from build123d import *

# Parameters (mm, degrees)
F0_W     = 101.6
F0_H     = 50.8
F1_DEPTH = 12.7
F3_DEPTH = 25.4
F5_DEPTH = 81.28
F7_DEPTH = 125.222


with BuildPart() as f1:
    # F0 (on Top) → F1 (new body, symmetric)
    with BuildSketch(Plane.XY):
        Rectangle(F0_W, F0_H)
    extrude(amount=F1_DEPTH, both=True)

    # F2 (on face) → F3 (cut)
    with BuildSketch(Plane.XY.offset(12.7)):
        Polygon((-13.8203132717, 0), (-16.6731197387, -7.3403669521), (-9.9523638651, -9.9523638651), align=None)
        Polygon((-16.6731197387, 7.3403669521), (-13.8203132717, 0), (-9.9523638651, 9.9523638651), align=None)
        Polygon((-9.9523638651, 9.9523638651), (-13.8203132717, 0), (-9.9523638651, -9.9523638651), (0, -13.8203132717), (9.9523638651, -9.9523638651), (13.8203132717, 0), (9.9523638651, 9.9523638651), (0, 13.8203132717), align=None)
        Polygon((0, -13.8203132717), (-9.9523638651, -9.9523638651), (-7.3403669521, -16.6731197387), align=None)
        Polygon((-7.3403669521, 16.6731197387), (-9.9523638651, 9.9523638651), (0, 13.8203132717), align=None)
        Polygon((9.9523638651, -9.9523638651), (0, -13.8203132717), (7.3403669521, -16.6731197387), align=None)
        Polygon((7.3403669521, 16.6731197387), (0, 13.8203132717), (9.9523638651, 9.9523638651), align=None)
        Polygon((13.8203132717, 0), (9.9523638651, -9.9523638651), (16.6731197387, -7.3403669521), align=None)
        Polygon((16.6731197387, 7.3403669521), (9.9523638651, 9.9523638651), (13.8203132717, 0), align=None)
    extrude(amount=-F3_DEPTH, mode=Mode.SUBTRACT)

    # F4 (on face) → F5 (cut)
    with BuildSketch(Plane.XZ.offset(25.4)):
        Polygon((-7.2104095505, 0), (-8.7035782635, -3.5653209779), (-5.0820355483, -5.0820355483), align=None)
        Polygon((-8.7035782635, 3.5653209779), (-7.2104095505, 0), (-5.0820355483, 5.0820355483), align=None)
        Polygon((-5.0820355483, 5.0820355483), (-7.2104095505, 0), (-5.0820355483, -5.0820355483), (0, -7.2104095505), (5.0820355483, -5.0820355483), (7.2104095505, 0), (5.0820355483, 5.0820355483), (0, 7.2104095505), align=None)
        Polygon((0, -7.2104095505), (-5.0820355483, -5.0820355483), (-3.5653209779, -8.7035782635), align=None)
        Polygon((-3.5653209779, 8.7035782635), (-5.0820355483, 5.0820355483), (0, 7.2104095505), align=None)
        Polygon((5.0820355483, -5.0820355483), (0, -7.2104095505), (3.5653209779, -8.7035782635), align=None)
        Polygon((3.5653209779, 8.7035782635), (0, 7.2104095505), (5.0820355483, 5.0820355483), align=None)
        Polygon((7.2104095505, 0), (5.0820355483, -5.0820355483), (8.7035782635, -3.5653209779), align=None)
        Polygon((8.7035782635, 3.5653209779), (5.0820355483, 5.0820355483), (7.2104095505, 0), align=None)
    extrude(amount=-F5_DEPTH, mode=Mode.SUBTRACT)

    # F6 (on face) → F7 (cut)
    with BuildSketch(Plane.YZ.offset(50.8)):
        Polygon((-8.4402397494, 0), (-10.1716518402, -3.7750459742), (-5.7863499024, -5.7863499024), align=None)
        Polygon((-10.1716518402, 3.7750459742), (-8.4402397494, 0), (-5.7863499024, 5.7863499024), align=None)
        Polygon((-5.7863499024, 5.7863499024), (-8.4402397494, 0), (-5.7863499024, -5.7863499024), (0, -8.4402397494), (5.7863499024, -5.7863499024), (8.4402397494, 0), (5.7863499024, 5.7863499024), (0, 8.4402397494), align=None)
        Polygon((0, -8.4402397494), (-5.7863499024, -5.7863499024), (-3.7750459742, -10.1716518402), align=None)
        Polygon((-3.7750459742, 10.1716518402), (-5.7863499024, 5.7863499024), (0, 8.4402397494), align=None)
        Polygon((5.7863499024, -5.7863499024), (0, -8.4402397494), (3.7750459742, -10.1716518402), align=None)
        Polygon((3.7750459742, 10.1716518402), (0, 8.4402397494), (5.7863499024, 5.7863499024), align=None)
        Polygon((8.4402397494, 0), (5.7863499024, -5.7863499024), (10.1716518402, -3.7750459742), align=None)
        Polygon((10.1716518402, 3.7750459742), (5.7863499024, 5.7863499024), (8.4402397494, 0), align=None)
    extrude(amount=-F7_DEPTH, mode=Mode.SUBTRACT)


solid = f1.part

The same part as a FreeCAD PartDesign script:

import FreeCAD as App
import Part
import Sketcher
Q = App.Units.Quantity

doc = App.newDocument("Part")
params = doc.addObject("Spreadsheet::Sheet", "Params")
for row, (alias, value) in enumerate([
    ("sketch1_width", "4 in"),
    ("sketch1_height", "2 in"),
    ("pad1_length", "1 in"),
    ("pocket1_length", "1 in"),
    ("pocket2_length", "3.2 in"),
    ("pocket3_length", "4.93 in"),
], start=1):
    params.set(f"A{row}", alias)
    params.set(f"B{row}", "=" + value)
    params.setAlias(f"B{row}", alias)

body = doc.addObject("PartDesign::Body", "Body")

sketch1 = doc.addObject("Sketcher::SketchObject", "Sketch")
body.addObject(sketch1)
sketch1.AttachmentSupport = (doc.XY_Plane, [""])
sketch1.MapMode = "FlatFace"
sketch1.addGeometry([
    Part.LineSegment(App.Vector(-51, 25, 0), App.Vector(-51, -25, 0)),
    Part.LineSegment(App.Vector(-51, -25, 0), App.Vector(51, -25, 0)),
    Part.LineSegment(App.Vector(51, -25, 0), App.Vector(51, 25, 0)),
    Part.LineSegment(App.Vector(51, 25, 0), App.Vector(-51, 25, 0)),
], False)
sketch1.addConstraint([
    Sketcher.Constraint("Coincident", 0, 2, 1, 1),
    Sketcher.Constraint("Coincident", 1, 2, 2, 1),
    Sketcher.Constraint("Coincident", 2, 2, 3, 1),
    Sketcher.Constraint("Coincident", 3, 2, 0, 1),
    Sketcher.Constraint("Vertical", 0),
    Sketcher.Constraint("Horizontal", 1),
    Sketcher.Constraint("Vertical", 2),
    Sketcher.Constraint("Horizontal", 3),
    Sketcher.Constraint("Symmetric", 0, 2, 2, 2, -1, 1),
    Sketcher.Constraint("DistanceX", 1, 1, 1, 2, Q("4 in")),
    Sketcher.Constraint("DistanceY", 0, 2, 0, 1, Q("2 in")),
])
sketch1.setExpression("Constraints[9]", "Params.sketch1_width")
sketch1.setExpression("Constraints[10]", "Params.sketch1_height")
pad1 = doc.addObject("PartDesign::Pad", "Pad")
body.addObject(pad1)
pad1.Profile = sketch1
pad1.setExpression("Length", "Params.pad1_length")
pad1.Midplane = True

sketch2 = doc.addObject("Sketcher::SketchObject", "Sketch001")
body.addObject(sketch2)
sketch2.AttachmentSupport = (doc.XY_Plane, [""])
sketch2.MapMode = "FlatFace"
sketch2.AttachmentOffset = App.Placement(App.Vector(0, 0, 0.5 * 25.4), App.Rotation())
sketch2.addGeometry([
    Part.LineSegment(App.Vector(-14, 0, 0), App.Vector(-17, -7, 0)),
    Part.LineSegment(App.Vector(-17, -7, 0), App.Vector(-10, -10, 0)),
    Part.LineSegment(App.Vector(-10, -10, 0), App.Vector(-7, -17, 0)),
    Part.LineSegment(App.Vector(-7, -17, 0), App.Vector(0, -14, 0)),
    Part.LineSegment(App.Vector(0, -14, 0), App.Vector(7, -17, 0)),
    Part.LineSegment(App.Vector(7, -17, 0), App.Vector(10, -10, 0)),
    Part.LineSegment(App.Vector(10, -10, 0), App.Vector(17, -7, 0)),
    Part.LineSegment(App.Vector(17, -7, 0), App.Vector(14, 0, 0)),
    Part.LineSegment(App.Vector(14, 0, 0), App.Vector(17, 7, 0)),
    Part.LineSegment(App.Vector(17, 7, 0), App.Vector(10, 10, 0)),
    Part.LineSegment(App.Vector(10, 10, 0), App.Vector(7, 17, 0)),
    Part.LineSegment(App.Vector(7, 17, 0), App.Vector(0, 14, 0)),
    Part.LineSegment(App.Vector(0, 14, 0), App.Vector(-7, 17, 0)),
    Part.LineSegment(App.Vector(-7, 17, 0), App.Vector(-10, 10, 0)),
    Part.LineSegment(App.Vector(-10, 10, 0), App.Vector(-17, 7, 0)),
    Part.LineSegment(App.Vector(-17, 7, 0), App.Vector(-14, 0, 0)),
], False)
sketch2.addConstraint([
    Sketcher.Constraint("Coincident", 0, 2, 1, 1),
    Sketcher.Constraint("Coincident", 1, 2, 2, 1),
    Sketcher.Constraint("Coincident", 2, 2, 3, 1),
    Sketcher.Constraint("Coincident", 3, 2, 4, 1),
    Sketcher.Constraint("Coincident", 4, 2, 5, 1),
    Sketcher.Constraint("Coincident", 5, 2, 6, 1),
    Sketcher.Constraint("Coincident", 6, 2, 7, 1),
    Sketcher.Constraint("Coincident", 7, 2, 8, 1),
    Sketcher.Constraint("Coincident", 8, 2, 9, 1),
    Sketcher.Constraint("Coincident", 9, 2, 10, 1),
    Sketcher.Constraint("Coincident", 10, 2, 11, 1),
    Sketcher.Constraint("Coincident", 11, 2, 12, 1),
    Sketcher.Constraint("Coincident", 12, 2, 13, 1),
    Sketcher.Constraint("Coincident", 13, 2, 14, 1),
    Sketcher.Constraint("Coincident", 14, 2, 15, 1),
    Sketcher.Constraint("Coincident", 15, 2, 0, 1),
    Sketcher.Constraint("Symmetric", 0, 2, 8, 2, -1, 1),
    Sketcher.Constraint("Symmetric", 1, 2, 9, 2, -1, 1),
    Sketcher.Constraint("Symmetric", 2, 2, 10, 2, -1, 1),
    Sketcher.Constraint("Symmetric", 3, 2, 11, 2, -1, 1),
    Sketcher.Constraint("Symmetric", 4, 2, 12, 2, -1, 1),
    Sketcher.Constraint("Symmetric", 5, 2, 13, 2, -1, 1),
    Sketcher.Constraint("Symmetric", 6, 2, 14, 2, -1, 1),
    Sketcher.Constraint("Symmetric", 7, 2, 15, 2, -1, 1),
    Sketcher.Constraint("Symmetric", 2, 2, 4, 2, -2),
    Sketcher.Constraint("Symmetric", 1, 2, 5, 2, -2),
    Sketcher.Constraint("Symmetric", 0, 2, 6, 2, -2),
    Sketcher.Constraint("PointOnObject", 3, 2, -2),
    Sketcher.Constraint("PointOnObject", 7, 2, -1),
    Sketcher.Constraint("Perpendicular", 0, 1),
    Sketcher.Constraint("Perpendicular", 2, 3),
    Sketcher.Constraint("Parallel", 1, 4),
    Sketcher.Constraint("Equal", 1, 2),
    Sketcher.Constraint("Equal", 0, 3),
    Sketcher.Constraint("DistanceX", 0, 2, -1, 1, Q("16.67312 mm")),
    Sketcher.Constraint("DistanceY", 3, 2, 1, 2, Q("3.867949 mm")),
    Sketcher.Constraint("DistanceX", 1, 2, 4, 2, Q("17.292731 mm")),
])
pocket1 = doc.addObject("PartDesign::Pocket", "Pocket")
body.addObject(pocket1)
pocket1.Profile = sketch2
pocket1.setExpression("Length", "Params.pocket1_length")

sketch3 = doc.addObject("Sketcher::SketchObject", "Sketch002")
body.addObject(sketch3)
sketch3.AttachmentSupport = (doc.XZ_Plane, [""])
sketch3.MapMode = "FlatFace"
sketch3.AttachmentOffset = App.Placement(App.Vector(0, 0, 1 * 25.4), App.Rotation())
sketch3.addGeometry([
    Part.LineSegment(App.Vector(-7.2, 0, 0), App.Vector(-8.7, -3.6, 0)),
    Part.LineSegment(App.Vector(-8.7, -3.6, 0), App.Vector(-5.1, -5.1, 0)),
    Part.LineSegment(App.Vector(-5.1, -5.1, 0), App.Vector(-3.6, -8.7, 0)),
    Part.LineSegment(App.Vector(-3.6, -8.7, 0), App.Vector(0, -7.2, 0)),
    Part.LineSegment(App.Vector(0, -7.2, 0), App.Vector(3.6, -8.7, 0)),
    Part.LineSegment(App.Vector(3.6, -8.7, 0), App.Vector(5.1, -5.1, 0)),
    Part.LineSegment(App.Vector(5.1, -5.1, 0), App.Vector(8.7, -3.6, 0)),
    Part.LineSegment(App.Vector(8.7, -3.6, 0), App.Vector(7.2, 0, 0)),
    Part.LineSegment(App.Vector(7.2, 0, 0), App.Vector(8.7, 3.6, 0)),
    Part.LineSegment(App.Vector(8.7, 3.6, 0), App.Vector(5.1, 5.1, 0)),
    Part.LineSegment(App.Vector(5.1, 5.1, 0), App.Vector(3.6, 8.7, 0)),
    Part.LineSegment(App.Vector(3.6, 8.7, 0), App.Vector(0, 7.2, 0)),
    Part.LineSegment(App.Vector(0, 7.2, 0), App.Vector(-3.6, 8.7, 0)),
    Part.LineSegment(App.Vector(-3.6, 8.7, 0), App.Vector(-5.1, 5.1, 0)),
    Part.LineSegment(App.Vector(-5.1, 5.1, 0), App.Vector(-8.7, 3.6, 0)),
    Part.LineSegment(App.Vector(-8.7, 3.6, 0), App.Vector(-7.2, 0, 0)),
], False)
sketch3.addConstraint([
    Sketcher.Constraint("Coincident", 0, 2, 1, 1),
    Sketcher.Constraint("Coincident", 1, 2, 2, 1),
    Sketcher.Constraint("Coincident", 2, 2, 3, 1),
    Sketcher.Constraint("Coincident", 3, 2, 4, 1),
    Sketcher.Constraint("Coincident", 4, 2, 5, 1),
    Sketcher.Constraint("Coincident", 5, 2, 6, 1),
    Sketcher.Constraint("Coincident", 6, 2, 7, 1),
    Sketcher.Constraint("Coincident", 7, 2, 8, 1),
    Sketcher.Constraint("Coincident", 8, 2, 9, 1),
    Sketcher.Constraint("Coincident", 9, 2, 10, 1),
    Sketcher.Constraint("Coincident", 10, 2, 11, 1),
    Sketcher.Constraint("Coincident", 11, 2, 12, 1),
    Sketcher.Constraint("Coincident", 12, 2, 13, 1),
    Sketcher.Constraint("Coincident", 13, 2, 14, 1),
    Sketcher.Constraint("Coincident", 14, 2, 15, 1),
    Sketcher.Constraint("Coincident", 15, 2, 0, 1),
    Sketcher.Constraint("Symmetric", 0, 2, 8, 2, -1, 1),
    Sketcher.Constraint("Symmetric", 1, 2, 9, 2, -1, 1),
    Sketcher.Constraint("Symmetric", 2, 2, 10, 2, -1, 1),
    Sketcher.Constraint("Symmetric", 3, 2, 11, 2, -1, 1),
    Sketcher.Constraint("Symmetric", 4, 2, 12, 2, -1, 1),
    Sketcher.Constraint("Symmetric", 5, 2, 13, 2, -1, 1),
    Sketcher.Constraint("Symmetric", 6, 2, 14, 2, -1, 1),
    Sketcher.Constraint("Symmetric", 7, 2, 15, 2, -1, 1),
    Sketcher.Constraint("Symmetric", 2, 2, 4, 2, -2),
    Sketcher.Constraint("Symmetric", 1, 2, 5, 2, -2),
    Sketcher.Constraint("Symmetric", 0, 2, 6, 2, -2),
    Sketcher.Constraint("PointOnObject", 3, 2, -2),
    Sketcher.Constraint("PointOnObject", 7, 2, -1),
    Sketcher.Constraint("Perpendicular", 0, 1),
    Sketcher.Constraint("Perpendicular", 2, 3),
    Sketcher.Constraint("Parallel", 1, 4),
    Sketcher.Constraint("Equal", 1, 2),
    Sketcher.Constraint("Equal", 0, 3),
    Sketcher.Constraint("DistanceX", 0, 2, 4, 2, Q("12.268899 mm")),
    Sketcher.Constraint("Distance", 1, Q("3.926321 mm")),
    Sketcher.Constraint("DistanceX", 0, 2, -1, 1, Q("8.703578 mm")),
])
pocket2 = doc.addObject("PartDesign::Pocket", "Pocket001")
body.addObject(pocket2)
pocket2.Profile = sketch3
pocket2.setExpression("Length", "Params.pocket2_length")

sketch4 = doc.addObject("Sketcher::SketchObject", "Sketch003")
body.addObject(sketch4)
sketch4.AttachmentSupport = (doc.YZ_Plane, [""])
sketch4.MapMode = "FlatFace"
sketch4.AttachmentOffset = App.Placement(App.Vector(0, 0, 2 * 25.4), App.Rotation())
sketch4.addGeometry([
    Part.LineSegment(App.Vector(-8.4, 0, 0), App.Vector(-10.2, -3.8, 0)),
    Part.LineSegment(App.Vector(-10.2, -3.8, 0), App.Vector(-5.8, -5.8, 0)),
    Part.LineSegment(App.Vector(-5.8, -5.8, 0), App.Vector(-3.8, -10.2, 0)),
    Part.LineSegment(App.Vector(-3.8, -10.2, 0), App.Vector(0, -8.4, 0)),
    Part.LineSegment(App.Vector(0, -8.4, 0), App.Vector(3.8, -10.2, 0)),
    Part.LineSegment(App.Vector(3.8, -10.2, 0), App.Vector(5.8, -5.8, 0)),
    Part.LineSegment(App.Vector(5.8, -5.8, 0), App.Vector(10.2, -3.8, 0)),
    Part.LineSegment(App.Vector(10.2, -3.8, 0), App.Vector(8.4, 0, 0)),
    Part.LineSegment(App.Vector(8.4, 0, 0), App.Vector(10.2, 3.8, 0)),
    Part.LineSegment(App.Vector(10.2, 3.8, 0), App.Vector(5.8, 5.8, 0)),
    Part.LineSegment(App.Vector(5.8, 5.8, 0), App.Vector(3.8, 10.2, 0)),
    Part.LineSegment(App.Vector(3.8, 10.2, 0), App.Vector(0, 8.4, 0)),
    Part.LineSegment(App.Vector(0, 8.4, 0), App.Vector(-3.8, 10.2, 0)),
    Part.LineSegment(App.Vector(-3.8, 10.2, 0), App.Vector(-5.8, 5.8, 0)),
    Part.LineSegment(App.Vector(-5.8, 5.8, 0), App.Vector(-10.2, 3.8, 0)),
    Part.LineSegment(App.Vector(-10.2, 3.8, 0), App.Vector(-8.4, 0, 0)),
], False)
sketch4.addConstraint([
    Sketcher.Constraint("Coincident", 0, 2, 1, 1),
    Sketcher.Constraint("Coincident", 1, 2, 2, 1),
    Sketcher.Constraint("Coincident", 2, 2, 3, 1),
    Sketcher.Constraint("Coincident", 3, 2, 4, 1),
    Sketcher.Constraint("Coincident", 4, 2, 5, 1),
    Sketcher.Constraint("Coincident", 5, 2, 6, 1),
    Sketcher.Constraint("Coincident", 6, 2, 7, 1),
    Sketcher.Constraint("Coincident", 7, 2, 8, 1),
    Sketcher.Constraint("Coincident", 8, 2, 9, 1),
    Sketcher.Constraint("Coincident", 9, 2, 10, 1),
    Sketcher.Constraint("Coincident", 10, 2, 11, 1),
    Sketcher.Constraint("Coincident", 11, 2, 12, 1),
    Sketcher.Constraint("Coincident", 12, 2, 13, 1),
    Sketcher.Constraint("Coincident", 13, 2, 14, 1),
    Sketcher.Constraint("Coincident", 14, 2, 15, 1),
    Sketcher.Constraint("Coincident", 15, 2, 0, 1),
    Sketcher.Constraint("Symmetric", 0, 2, 8, 2, -1, 1),
    Sketcher.Constraint("Symmetric", 1, 2, 9, 2, -1, 1),
    Sketcher.Constraint("Symmetric", 2, 2, 10, 2, -1, 1),
    Sketcher.Constraint("Symmetric", 3, 2, 11, 2, -1, 1),
    Sketcher.Constraint("Symmetric", 4, 2, 12, 2, -1, 1),
    Sketcher.Constraint("Symmetric", 5, 2, 13, 2, -1, 1),
    Sketcher.Constraint("Symmetric", 6, 2, 14, 2, -1, 1),
    Sketcher.Constraint("Symmetric", 7, 2, 15, 2, -1, 1),
    Sketcher.Constraint("Symmetric", 2, 2, 4, 2, -2),
    Sketcher.Constraint("Symmetric", 1, 2, 5, 2, -2),
    Sketcher.Constraint("Symmetric", 0, 2, 6, 2, -2),
    Sketcher.Constraint("PointOnObject", 3, 2, -2),
    Sketcher.Constraint("PointOnObject", 7, 2, -1),
    Sketcher.Constraint("Perpendicular", 0, 1),
    Sketcher.Constraint("Perpendicular", 2, 3),
    Sketcher.Constraint("Parallel", 1, 4),
    Sketcher.Constraint("Equal", 1, 2),
    Sketcher.Constraint("Equal", 0, 3),
    Sketcher.Constraint("DistanceX", 0, 2, 1, 2, Q("4.385302 mm")),
    Sketcher.Constraint("DistanceX", 1, 2, 5, 2, Q("11.5727 mm")),
    Sketcher.Constraint("DistanceY", 3, 2, -1, 1, Q("8.44024 mm")),
])
pocket3 = doc.addObject("PartDesign::Pocket", "Pocket002")
body.addObject(pocket3)
pocket3.Profile = sketch4
pocket3.setExpression("Length", "Params.pocket3_length")

doc.recompute()
